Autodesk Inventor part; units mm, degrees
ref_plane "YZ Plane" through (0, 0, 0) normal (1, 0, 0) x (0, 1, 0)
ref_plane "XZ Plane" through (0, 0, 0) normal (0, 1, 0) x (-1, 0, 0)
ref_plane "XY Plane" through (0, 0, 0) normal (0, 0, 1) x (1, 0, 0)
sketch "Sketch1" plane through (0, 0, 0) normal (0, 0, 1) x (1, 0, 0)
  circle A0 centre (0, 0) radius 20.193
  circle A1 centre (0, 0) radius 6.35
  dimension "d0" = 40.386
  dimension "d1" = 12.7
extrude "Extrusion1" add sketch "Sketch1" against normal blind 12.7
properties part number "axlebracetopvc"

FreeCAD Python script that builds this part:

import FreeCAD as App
import Part
import Sketcher
from FreeCAD import Vector
Q = App.Units.Quantity

doc = App.newDocument("Part")
body = doc.addObject("PartDesign::Body", "Body")

sketch1 = body.newObject("Sketcher::SketchObject", "Sketch")
sketch1.AttachmentSupport = (doc.getObject("XY_Plane"), [""])
sketch1.MapMode = "FlatFace"
sketch1.addGeometry([
    Part.Circle(Vector(0, 0, 0), Vector(0, 0, 1), 20),
    Part.Circle(Vector(0, 0, 0), Vector(0, 0, 1), 6),
], False)
sketch1.addConstraint([
    Sketcher.Constraint("Coincident", 0, 3, -1, 1),
    Sketcher.Constraint("Coincident", 1, 3, -1, 1),
    Sketcher.Constraint("Diameter", 1, Q("0.5 in")),
    Sketcher.Constraint("Diameter", 0, Q("1.59 in")),
])
pad1 = body.newObject("PartDesign::Pad", "Pad")
pad1.Profile = sketch1
pad1.Length = Q("0.5 in")
pad1.Reversed = True

doc.recompute()
